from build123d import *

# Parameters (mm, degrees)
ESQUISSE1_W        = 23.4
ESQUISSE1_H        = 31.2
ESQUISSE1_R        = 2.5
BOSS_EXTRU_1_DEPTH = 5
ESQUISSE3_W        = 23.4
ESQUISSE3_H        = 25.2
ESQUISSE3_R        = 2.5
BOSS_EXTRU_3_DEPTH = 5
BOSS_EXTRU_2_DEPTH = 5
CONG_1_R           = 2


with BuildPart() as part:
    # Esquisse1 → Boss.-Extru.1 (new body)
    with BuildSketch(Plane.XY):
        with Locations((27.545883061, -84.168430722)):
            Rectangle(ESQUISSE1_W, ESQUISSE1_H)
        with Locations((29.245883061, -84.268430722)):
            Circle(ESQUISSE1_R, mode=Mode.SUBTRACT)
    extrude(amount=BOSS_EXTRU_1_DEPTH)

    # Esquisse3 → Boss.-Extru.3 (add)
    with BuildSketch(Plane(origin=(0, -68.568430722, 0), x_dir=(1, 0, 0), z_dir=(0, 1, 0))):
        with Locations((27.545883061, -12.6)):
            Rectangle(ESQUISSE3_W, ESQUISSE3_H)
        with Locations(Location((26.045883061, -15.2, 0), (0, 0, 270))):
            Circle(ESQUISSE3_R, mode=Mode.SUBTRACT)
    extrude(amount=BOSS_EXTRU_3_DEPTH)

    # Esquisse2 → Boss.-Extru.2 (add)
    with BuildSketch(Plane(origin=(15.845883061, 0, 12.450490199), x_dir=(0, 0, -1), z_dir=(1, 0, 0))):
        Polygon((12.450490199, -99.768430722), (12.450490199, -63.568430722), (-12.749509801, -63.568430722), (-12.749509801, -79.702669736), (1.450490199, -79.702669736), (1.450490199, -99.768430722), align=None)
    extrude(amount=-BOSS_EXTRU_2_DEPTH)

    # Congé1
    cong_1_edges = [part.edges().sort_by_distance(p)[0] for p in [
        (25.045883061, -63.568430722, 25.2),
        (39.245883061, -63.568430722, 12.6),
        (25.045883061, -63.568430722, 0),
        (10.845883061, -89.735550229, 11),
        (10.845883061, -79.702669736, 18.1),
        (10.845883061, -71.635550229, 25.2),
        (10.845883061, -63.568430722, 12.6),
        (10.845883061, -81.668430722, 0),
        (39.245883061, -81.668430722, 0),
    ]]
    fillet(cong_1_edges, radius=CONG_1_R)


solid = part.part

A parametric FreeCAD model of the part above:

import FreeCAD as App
import Part
import Sketcher


def edges_at(feature, points):
    """Names of the edges that pass closest to the given points."""
    edges = feature.Shape.Edges
    near = lambda p: min(range(len(edges)), key=lambda i: edges[i].distToShape(Part.Vertex(*p))[0])
    return sorted({f"Edge{near(p) + 1}" for p in points})

doc = App.newDocument("Part")
body = doc.addObject("PartDesign::Body", "Body")

sketch1 = body.newObject("Sketcher::SketchObject", "Sketch")
sketch1.AttachmentSupport = (doc.getObject("XY_Plane"), [""])
sketch1.MapMode = "FlatFace"
sketch1.addGeometry(Part.LineSegment(App.Vector(15.845883, -68.568431, 0), App.Vector(15.845883, -99.768431, 0)), False)
sketch1.addGeometry(Part.LineSegment(App.Vector(15.845883, -99.768431, 0), App.Vector(39.245883, -99.768431, 0)), False)
sketch1.addGeometry(Part.LineSegment(App.Vector(39.245883, -99.768431, 0), App.Vector(39.245883, -68.568431, 0)), False)
sketch1.addGeometry(Part.LineSegment(App.Vector(39.245883, -68.568431, 0), App.Vector(15.845883, -68.568431, 0)), False)
sketch1.addGeometry(Part.Circle(App.Vector(29.245883, -84.268431, 0), App.Vector(0, 0, 1), 2.5), False)
sketch1.addConstraint(Sketcher.Constraint("Coincident", 0, 2, 1, 1))
sketch1.addConstraint(Sketcher.Constraint("Coincident", 1, 2, 2, 1))
sketch1.addConstraint(Sketcher.Constraint("Coincident", 2, 2, 3, 1))
sketch1.addConstraint(Sketcher.Constraint("Coincident", 3, 2, 0, 1))
sketch1.addConstraint(Sketcher.Constraint("Vertical", 0))
sketch1.addConstraint(Sketcher.Constraint("Horizontal", 1))
sketch1.addConstraint(Sketcher.Constraint("Vertical", 2))
sketch1.addConstraint(Sketcher.Constraint("Horizontal", 3))
sketch1.addConstraint(Sketcher.Constraint("Diameter", 4, 5.0))
sketch1.addConstraint(Sketcher.Constraint("DistanceX", 1, 1, 1, 2, 23.4))
sketch1.addConstraint(Sketcher.Constraint("DistanceY", 0, 2, 0, 1, 31.2))
sketch1.addConstraint(Sketcher.Constraint("DistanceX", 4, 3, 1, 2, 10.0))
sketch1.addConstraint(Sketcher.Constraint("DistanceY", 0, 2, 4, 3, 15.5))
sketch1.addConstraint(Sketcher.Constraint("DistanceY", 4, 3, -1, 1, 84.268431))
sketch1.addConstraint(Sketcher.Constraint("DistanceX", -1, 1, 4, 3, 29.245883))
pad1 = body.newObject("PartDesign::Pad", "Pad")
pad1.Profile = sketch1
pad1.Length = 5

sketch2 = body.newObject("Sketcher::SketchObject", "Sketch001")
sketch2.AttachmentSupport = (doc.getObject("XZ_Plane"), [""])
sketch2.MapMode = "FlatFace"
sketch2.AttachmentOffset = App.Placement(App.Vector(0, 0, 68.568431), App.Rotation())
sketch2.addGeometry(Part.LineSegment(App.Vector(15.845883, 0, 0), App.Vector(15.845883, 25.2, 0)), False)
sketch2.addGeometry(Part.LineSegment(App.Vector(15.845883, 25.2, 0), App.Vector(39.245883, 25.2, 0)), False)
sketch2.addGeometry(Part.LineSegment(App.Vector(39.245883, 25.2, 0), App.Vector(39.245883, 0, 0)), False)
sketch2.addGeometry(Part.LineSegment(App.Vector(39.245883, 0, 0), App.Vector(15.845883, 0, 0)), False)
sketch2.addGeometry(Part.Circle(App.Vector(26.045883, 15.2, 0), App.Vector(0, 0, 1), 2.5), False)
sketch2.addConstraint(Sketcher.Constraint("Coincident", 0, 2, 1, 1))
sketch2.addConstraint(Sketcher.Constraint("Coincident", 1, 2, 2, 1))
sketch2.addConstraint(Sketcher.Constraint("Coincident", 2, 2, 3, 1))
sketch2.addConstraint(Sketcher.Constraint("Coincident", 3, 2, 0, 1))
sketch2.addConstraint(Sketcher.Constraint("Vertical", 0))
sketch2.addConstraint(Sketcher.Constraint("Horizontal", 1))
sketch2.addConstraint(Sketcher.Constraint("Vertical", 2))
sketch2.addConstraint(Sketcher.Constraint("Horizontal", 3))
sketch2.addConstraint(Sketcher.Constraint("PointOnObject", 2, 2, -1))
sketch2.addConstraint(Sketcher.Constraint("Diameter", 4, 5.0))
sketch2.addConstraint(Sketcher.Constraint("DistanceX", 1, 1, 1, 2, 23.4))
sketch2.addConstraint(Sketcher.Constraint("DistanceY", 0, 1, 0, 2, 25.2))
sketch2.addConstraint(Sketcher.Constraint("DistanceY", 4, 3, 0, 2, 10.0))
sketch2.addConstraint(Sketcher.Constraint("DistanceX", 0, 2, 4, 3, 10.2))
sketch2.addConstraint(Sketcher.Constraint("DistanceX", -1, 1, 4, 3, 26.045883))
pad2 = body.newObject("PartDesign::Pad", "Pad001")
pad2.Profile = sketch2
pad2.Length = 5
pad2.Reversed = True

sketch3 = body.newObject("Sketcher::SketchObject", "Sketch002")
sketch3.AttachmentSupport = (doc.getObject("YZ_Plane"), [""])
sketch3.MapMode = "FlatFace"
sketch3.AttachmentOffset = App.Placement(App.Vector(0, 0, 15.845883), App.Rotation())
sketch3.addGeometry(Part.LineSegment(App.Vector(-99.768431, 0, 0), App.Vector(-63.568431, 0, 0)), False)
sketch3.addGeometry(Part.LineSegment(App.Vector(-63.568431, 0, 0), App.Vector(-63.568431, 25.2, 0)), False)
sketch3.addGeometry(Part.LineSegment(App.Vector(-63.568431, 25.2, 0), App.Vector(-79.70267, 25.2, 0)), False)
sketch3.addGeometry(Part.LineSegment(App.Vector(-79.70267, 25.2, 0), App.Vector(-79.70267, 11, 0)), False)
sketch3.addGeometry(Part.LineSegment(App.Vector(-79.70267, 11, 0), App.Vector(-99.768431, 11, 0)), False)
sketch3.addGeometry(Part.LineSegment(App.Vector(-99.768431, 11, 0), App.Vector(-99.768431, 0, 0)), False)
sketch3.addConstraint(Sketcher.Constraint("Coincident", 0, 2, 1, 1))
sketch3.addConstraint(Sketcher.Constraint("Coincident", 1, 2, 2, 1))
sketch3.addConstraint(Sketcher.Constraint("Coincident", 2, 2, 3, 1))
sketch3.addConstraint(Sketcher.Constraint("Coincident", 3, 2, 4, 1))
sketch3.addConstraint(Sketcher.Constraint("Coincident", 4, 2, 5, 1))
sketch3.addConstraint(Sketcher.Constraint("Coincident", 5, 2, 0, 1))
sketch3.addConstraint(Sketcher.Constraint("Horizontal", 0))
sketch3.addConstraint(Sketcher.Constraint("Vertical", 1))
sketch3.addConstraint(Sketcher.Constraint("Horizontal", 2))
sketch3.addConstraint(Sketcher.Constraint("Vertical", 3))
sketch3.addConstraint(Sketcher.Constraint("Horizontal", 4))
sketch3.addConstraint(Sketcher.Constraint("Vertical", 5))
sketch3.addConstraint(Sketcher.Constraint("PointOnObject", 0, 2, -1))
sketch3.addConstraint(Sketcher.Constraint("DistanceY", 5, 2, 5, 1, 11.0))
sketch3.addConstraint(Sketcher.Constraint("DistanceX", 0, 1, 0, 2, 36.2))
sketch3.addConstraint(Sketcher.Constraint("DistanceY", 1, 1, 1, 2, 25.2))
sketch3.addConstraint(Sketcher.Constraint("DistanceX", 2, 2, 2, 1, 16.134239))
sketch3.addConstraint(Sketcher.Constraint("DistanceX", 0, 2, -1, 1, 63.568431))
pad3 = body.newObject("PartDesign::Pad", "Pad002")
pad3.Profile = sketch3
pad3.Length = 5
pad3.Reversed = True
doc.recompute()

fillet = body.newObject("PartDesign::Fillet", "Fillet")
fillet.Base = (pad3, edges_at(pad3, [
    (25.046, -63.568, 25.2),
    (39.246, -63.568, 12.6),
    (25.046, -63.568, 0),
    (10.846, -89.736, 11),
    (10.846, -79.703, 18.1),
    (10.846, -71.636, 25.2),
    (10.846, -63.568, 12.6),
    (10.846, -81.668, 0),
    (39.246, -81.668, 0),
]))
fillet.Radius = 2

doc.recompute()
